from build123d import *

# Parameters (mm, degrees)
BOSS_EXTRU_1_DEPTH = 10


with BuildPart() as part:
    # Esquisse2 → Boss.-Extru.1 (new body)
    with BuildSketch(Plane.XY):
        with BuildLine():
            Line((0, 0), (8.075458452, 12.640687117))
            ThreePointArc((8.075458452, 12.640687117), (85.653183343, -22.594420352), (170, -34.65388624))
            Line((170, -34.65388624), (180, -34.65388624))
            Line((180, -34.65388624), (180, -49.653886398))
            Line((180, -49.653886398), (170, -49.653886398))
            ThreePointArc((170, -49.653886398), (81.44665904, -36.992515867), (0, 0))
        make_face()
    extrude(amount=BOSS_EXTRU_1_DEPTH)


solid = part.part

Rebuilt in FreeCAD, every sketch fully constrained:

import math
import FreeCAD as App
import Part
import Sketcher

V = App.Vector
Q = App.Units.Quantity

doc = App.newDocument("Part")
body = doc.addObject("PartDesign::Body", "Body")

# Sketch on XY plane
sketch1 = doc.addObject("Sketcher::SketchObject", "Sketch")
body.addObject(sketch1)
sketch1.AttachmentSupport = (doc.XY_Plane, [""])
sketch1.MapMode = "FlatFace"
sketch1.addGeometry(Part.LineSegment(V(8, 13, 0), V(0, 0, 0)), False)
sketch1.addGeometry(Part.ArcOfCircle(Part.Circle(V(170, 266, 0), V(0, 0, 1), 316), math.radians(-123), math.radians(-90)), False)
sketch1.addGeometry(Part.LineSegment(V(170, -50, 0), V(180, -50, 0)), False)
sketch1.addGeometry(Part.LineSegment(V(180, -50, 0), V(180, -35, 0)), False)
sketch1.addGeometry(Part.LineSegment(V(180, -35, 0), V(170, -35, 0)), False)
sketch1.addGeometry(Part.ArcOfCircle(Part.Circle(V(170, 266, 0), V(0, 0, 1), 301), math.radians(-123), math.radians(-90)), False)
sketch1.addConstraint(Sketcher.Constraint("Coincident", 0, 2, 1, 1))
sketch1.addConstraint(Sketcher.Constraint("Coincident", 1, 2, 2, 1))
sketch1.addConstraint(Sketcher.Constraint("Coincident", 2, 2, 3, 1))
sketch1.addConstraint(Sketcher.Constraint("Coincident", 3, 2, 4, 1))
sketch1.addConstraint(Sketcher.Constraint("Coincident", 4, 2, 5, 2))
sketch1.addConstraint(Sketcher.Constraint("Coincident", 5, 1, 0, 1))
sketch1.addConstraint(Sketcher.Constraint("Horizontal", 2))
sketch1.addConstraint(Sketcher.Constraint("Vertical", 3))
sketch1.addConstraint(Sketcher.Constraint("Horizontal", 4))
sketch1.addConstraint(Sketcher.Constraint("Coincident", 0, 2, -1, 1))
sketch1.addConstraint(Sketcher.Constraint("Coincident", 5, 3, 1, 3))
sketch1.addConstraint(Sketcher.Constraint("Vertical", 1, 2, 4, 2))
sketch1.addConstraint(Sketcher.Constraint("DistanceX", 2, 1, 2, 2, Q("10 mm")))
sketch1.addConstraint(Sketcher.Constraint("DistanceY", 3, 1, 3, 2, Q("15 mm")))
sketch1.addConstraint(Sketcher.Constraint("DistanceX", -1, 1, 2, 2, Q("180 mm")))
sketch1.addConstraint(Sketcher.Constraint("Radius", 1, Q("315.688669 mm")))
sketch1.addConstraint(Sketcher.Constraint("DistanceX", -1, 1, 1, 3, Q("169.955382 mm")))
sketch1.addConstraint(Sketcher.Constraint("DistanceX", -1, 1, 5, 1, Q("8.075458 mm")))
pad1 = doc.addObject("PartDesign::Pad", "Pad")
body.addObject(pad1)
pad1.Profile = sketch1
pad1.Length = 10

doc.recompute()
